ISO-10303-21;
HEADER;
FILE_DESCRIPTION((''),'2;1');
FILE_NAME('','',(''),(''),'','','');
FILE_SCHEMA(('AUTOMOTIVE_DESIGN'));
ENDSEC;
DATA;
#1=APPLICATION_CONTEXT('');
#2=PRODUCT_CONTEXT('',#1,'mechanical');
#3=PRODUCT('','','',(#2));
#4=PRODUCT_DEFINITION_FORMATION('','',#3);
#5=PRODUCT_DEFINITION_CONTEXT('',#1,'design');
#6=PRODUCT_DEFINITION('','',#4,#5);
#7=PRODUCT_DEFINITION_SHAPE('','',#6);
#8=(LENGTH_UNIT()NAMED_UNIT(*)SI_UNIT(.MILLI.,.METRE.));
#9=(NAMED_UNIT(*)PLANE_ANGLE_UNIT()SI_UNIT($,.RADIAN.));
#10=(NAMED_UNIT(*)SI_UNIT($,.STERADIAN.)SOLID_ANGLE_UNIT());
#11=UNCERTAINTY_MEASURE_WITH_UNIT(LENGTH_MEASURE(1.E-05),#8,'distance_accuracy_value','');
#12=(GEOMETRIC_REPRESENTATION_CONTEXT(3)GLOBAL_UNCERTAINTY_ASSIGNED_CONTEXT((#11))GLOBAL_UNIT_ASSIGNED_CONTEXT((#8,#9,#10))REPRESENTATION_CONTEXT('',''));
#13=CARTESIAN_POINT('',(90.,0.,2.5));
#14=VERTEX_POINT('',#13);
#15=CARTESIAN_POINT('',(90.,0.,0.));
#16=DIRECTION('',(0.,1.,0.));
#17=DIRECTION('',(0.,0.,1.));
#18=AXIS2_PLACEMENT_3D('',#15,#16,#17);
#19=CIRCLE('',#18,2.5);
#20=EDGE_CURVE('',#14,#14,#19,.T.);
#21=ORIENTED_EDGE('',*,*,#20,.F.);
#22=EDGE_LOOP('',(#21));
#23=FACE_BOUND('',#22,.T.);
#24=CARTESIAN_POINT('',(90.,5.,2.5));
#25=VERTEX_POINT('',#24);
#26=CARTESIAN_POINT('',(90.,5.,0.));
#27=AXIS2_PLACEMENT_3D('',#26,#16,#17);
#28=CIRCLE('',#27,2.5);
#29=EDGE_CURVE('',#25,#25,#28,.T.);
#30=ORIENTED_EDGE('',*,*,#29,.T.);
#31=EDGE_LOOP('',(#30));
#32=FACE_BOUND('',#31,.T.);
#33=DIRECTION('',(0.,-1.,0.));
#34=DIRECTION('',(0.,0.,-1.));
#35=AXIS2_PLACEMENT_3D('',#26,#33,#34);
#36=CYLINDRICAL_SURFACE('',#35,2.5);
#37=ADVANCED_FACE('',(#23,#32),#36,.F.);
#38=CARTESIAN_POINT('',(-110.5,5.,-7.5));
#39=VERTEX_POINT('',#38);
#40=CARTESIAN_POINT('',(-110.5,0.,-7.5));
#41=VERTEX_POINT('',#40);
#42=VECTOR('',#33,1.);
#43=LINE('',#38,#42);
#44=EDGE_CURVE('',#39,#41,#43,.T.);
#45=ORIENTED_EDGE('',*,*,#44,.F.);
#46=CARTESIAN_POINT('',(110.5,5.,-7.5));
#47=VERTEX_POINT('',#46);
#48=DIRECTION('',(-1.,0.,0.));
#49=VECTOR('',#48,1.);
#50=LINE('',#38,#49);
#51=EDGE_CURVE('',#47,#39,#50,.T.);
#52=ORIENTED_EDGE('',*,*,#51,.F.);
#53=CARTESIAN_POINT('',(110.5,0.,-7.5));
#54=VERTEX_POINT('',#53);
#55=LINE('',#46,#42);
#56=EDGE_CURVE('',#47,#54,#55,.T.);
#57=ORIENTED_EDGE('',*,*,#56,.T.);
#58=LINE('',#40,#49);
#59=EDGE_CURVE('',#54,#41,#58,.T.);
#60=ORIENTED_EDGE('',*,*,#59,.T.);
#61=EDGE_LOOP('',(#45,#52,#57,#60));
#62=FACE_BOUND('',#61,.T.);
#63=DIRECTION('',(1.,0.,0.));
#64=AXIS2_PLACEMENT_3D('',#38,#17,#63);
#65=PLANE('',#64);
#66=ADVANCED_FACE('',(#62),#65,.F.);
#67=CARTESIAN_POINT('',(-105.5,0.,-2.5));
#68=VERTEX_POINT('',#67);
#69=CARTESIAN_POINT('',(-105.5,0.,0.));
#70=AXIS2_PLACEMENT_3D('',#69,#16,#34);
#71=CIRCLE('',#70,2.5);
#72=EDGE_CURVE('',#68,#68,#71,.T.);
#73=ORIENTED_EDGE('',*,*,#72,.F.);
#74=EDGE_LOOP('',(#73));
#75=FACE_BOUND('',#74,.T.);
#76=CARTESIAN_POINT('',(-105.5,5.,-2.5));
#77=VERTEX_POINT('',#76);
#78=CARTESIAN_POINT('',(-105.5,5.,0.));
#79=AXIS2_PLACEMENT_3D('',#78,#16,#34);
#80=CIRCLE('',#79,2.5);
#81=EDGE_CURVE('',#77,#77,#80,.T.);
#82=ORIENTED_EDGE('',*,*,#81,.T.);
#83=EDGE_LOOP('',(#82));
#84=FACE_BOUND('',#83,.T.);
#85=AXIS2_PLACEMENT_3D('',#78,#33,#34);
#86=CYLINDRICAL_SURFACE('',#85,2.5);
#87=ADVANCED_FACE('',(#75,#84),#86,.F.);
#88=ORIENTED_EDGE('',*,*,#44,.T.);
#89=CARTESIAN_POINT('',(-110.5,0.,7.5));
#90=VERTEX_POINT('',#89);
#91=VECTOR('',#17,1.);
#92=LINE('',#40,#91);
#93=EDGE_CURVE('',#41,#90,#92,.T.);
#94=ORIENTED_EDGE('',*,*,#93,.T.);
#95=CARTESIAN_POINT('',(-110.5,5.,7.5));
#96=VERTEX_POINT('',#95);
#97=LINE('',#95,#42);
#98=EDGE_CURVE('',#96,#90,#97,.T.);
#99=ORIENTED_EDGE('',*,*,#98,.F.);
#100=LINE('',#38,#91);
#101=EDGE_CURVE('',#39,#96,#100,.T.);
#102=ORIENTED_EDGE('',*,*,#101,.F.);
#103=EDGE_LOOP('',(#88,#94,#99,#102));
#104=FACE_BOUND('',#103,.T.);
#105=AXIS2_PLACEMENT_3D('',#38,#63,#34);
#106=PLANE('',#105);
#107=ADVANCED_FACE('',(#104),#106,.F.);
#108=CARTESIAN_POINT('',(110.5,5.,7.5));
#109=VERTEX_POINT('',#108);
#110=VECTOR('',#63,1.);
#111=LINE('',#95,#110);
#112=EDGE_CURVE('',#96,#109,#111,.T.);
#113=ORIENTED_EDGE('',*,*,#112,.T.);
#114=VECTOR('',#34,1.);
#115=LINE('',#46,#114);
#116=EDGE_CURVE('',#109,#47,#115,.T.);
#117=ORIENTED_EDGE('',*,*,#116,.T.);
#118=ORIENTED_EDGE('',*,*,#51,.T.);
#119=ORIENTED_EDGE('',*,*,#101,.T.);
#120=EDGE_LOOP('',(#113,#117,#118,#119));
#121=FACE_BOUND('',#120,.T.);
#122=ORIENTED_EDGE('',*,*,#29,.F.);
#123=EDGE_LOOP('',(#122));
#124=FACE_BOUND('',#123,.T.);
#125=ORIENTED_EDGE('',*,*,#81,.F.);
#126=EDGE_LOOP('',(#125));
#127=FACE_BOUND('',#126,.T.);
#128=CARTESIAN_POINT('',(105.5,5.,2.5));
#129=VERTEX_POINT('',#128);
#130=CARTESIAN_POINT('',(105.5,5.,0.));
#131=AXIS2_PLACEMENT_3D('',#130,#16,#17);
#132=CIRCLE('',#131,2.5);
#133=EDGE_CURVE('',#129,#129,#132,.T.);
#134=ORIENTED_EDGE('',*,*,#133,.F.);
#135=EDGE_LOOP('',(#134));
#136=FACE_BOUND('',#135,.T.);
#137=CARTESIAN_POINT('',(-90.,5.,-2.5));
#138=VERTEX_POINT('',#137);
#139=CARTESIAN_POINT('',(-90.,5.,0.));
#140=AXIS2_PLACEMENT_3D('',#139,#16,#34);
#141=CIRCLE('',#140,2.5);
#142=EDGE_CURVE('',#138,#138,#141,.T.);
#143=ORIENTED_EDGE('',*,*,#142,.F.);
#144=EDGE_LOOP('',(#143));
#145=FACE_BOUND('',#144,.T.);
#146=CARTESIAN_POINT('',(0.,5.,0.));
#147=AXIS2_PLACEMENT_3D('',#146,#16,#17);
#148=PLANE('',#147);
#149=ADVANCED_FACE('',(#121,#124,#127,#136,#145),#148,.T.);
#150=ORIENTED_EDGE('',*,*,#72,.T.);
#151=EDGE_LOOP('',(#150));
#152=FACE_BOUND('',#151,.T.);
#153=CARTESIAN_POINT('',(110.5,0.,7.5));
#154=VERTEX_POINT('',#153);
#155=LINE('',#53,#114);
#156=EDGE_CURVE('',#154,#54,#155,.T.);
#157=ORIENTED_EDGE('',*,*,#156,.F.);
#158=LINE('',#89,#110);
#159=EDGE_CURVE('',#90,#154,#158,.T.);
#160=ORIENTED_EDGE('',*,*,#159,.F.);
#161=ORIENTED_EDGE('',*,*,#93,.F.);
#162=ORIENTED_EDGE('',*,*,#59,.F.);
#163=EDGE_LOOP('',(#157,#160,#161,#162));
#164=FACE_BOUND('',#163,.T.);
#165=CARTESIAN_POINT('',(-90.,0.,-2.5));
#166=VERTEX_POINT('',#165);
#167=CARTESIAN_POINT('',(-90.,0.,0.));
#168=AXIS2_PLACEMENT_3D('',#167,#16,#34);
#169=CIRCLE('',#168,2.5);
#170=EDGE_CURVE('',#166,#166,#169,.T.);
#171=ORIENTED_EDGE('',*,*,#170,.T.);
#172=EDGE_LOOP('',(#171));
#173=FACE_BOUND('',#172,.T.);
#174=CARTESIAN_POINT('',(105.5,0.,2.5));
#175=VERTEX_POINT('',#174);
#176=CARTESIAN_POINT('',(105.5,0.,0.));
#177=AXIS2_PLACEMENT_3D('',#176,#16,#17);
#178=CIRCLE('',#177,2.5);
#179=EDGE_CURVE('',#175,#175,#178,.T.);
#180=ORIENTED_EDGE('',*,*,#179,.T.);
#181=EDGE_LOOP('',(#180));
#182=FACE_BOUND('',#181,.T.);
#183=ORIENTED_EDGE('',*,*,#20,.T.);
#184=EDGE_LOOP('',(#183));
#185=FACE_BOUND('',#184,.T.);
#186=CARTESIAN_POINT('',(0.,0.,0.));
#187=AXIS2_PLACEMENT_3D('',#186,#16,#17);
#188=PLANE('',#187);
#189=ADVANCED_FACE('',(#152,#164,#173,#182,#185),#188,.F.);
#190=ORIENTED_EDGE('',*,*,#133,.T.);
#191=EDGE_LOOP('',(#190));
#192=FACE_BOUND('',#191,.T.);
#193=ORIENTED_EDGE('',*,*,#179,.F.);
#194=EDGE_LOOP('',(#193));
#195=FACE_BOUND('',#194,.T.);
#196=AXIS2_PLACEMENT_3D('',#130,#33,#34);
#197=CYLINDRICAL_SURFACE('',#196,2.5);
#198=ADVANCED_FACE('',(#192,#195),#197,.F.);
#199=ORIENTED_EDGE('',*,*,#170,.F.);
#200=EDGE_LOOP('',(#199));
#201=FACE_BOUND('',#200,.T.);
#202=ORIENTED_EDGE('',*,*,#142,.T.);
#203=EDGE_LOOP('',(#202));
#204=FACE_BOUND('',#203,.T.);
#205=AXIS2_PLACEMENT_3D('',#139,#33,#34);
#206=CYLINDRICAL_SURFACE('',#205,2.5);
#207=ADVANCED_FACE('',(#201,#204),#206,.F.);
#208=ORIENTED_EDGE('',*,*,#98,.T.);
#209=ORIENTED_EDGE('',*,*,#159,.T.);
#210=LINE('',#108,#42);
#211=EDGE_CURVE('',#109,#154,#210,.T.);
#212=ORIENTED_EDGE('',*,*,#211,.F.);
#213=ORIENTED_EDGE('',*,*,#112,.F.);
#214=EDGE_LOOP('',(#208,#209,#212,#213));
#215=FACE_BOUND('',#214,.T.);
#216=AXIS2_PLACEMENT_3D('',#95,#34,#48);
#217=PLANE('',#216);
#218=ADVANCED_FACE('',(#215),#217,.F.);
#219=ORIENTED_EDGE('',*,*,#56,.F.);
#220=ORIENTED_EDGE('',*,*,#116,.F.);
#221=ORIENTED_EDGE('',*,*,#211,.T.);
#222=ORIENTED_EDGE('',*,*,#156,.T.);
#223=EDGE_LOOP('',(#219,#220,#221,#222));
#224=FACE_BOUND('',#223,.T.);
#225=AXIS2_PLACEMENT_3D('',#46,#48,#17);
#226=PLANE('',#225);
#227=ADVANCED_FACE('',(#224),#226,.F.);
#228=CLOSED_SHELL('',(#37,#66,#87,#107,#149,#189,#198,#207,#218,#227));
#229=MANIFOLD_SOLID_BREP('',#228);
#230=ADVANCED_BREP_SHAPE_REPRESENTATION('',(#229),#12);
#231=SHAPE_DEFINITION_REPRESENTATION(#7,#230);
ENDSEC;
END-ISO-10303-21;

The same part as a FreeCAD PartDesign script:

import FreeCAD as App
import Part
import Sketcher
from FreeCAD import Vector


def add_polygon(sketch, points):
    """Adds a closed chain of lines whose ends are joined by coincident constraints."""
    first, n = sketch.GeometryCount, len(points)
    for a, b in zip(points, points[1:] + points[:1]):
        sketch.addGeometry(Part.LineSegment(App.Vector(*a, 0), App.Vector(*b, 0)), False)
    for i in range(n):
        sketch.addConstraint(Sketcher.Constraint("Coincident", first + i, 2, first + (i + 1) % n, 1))

doc = App.newDocument("Part")
body = doc.addObject("PartDesign::Body", "Body")

# Sketch on XZ plane
sketch1 = body.newObject("Sketcher::SketchObject", "Sketch")
sketch1.AttachmentSupport = (doc.getObject("XZ_Plane"), [""])
sketch1.MapMode = "FlatFace"
add_polygon(sketch1, [(-110.5, -7.5), (-110.5, 7.5), (110.5, 7.5), (110.5, -7.5)])  # lines 0-3
sketch1.addGeometry(Part.Circle(Vector(-105.5, 0, 0), Vector(0, 0, 1), 2.5), False)  # 4
sketch1.addGeometry(Part.Circle(Vector(-90, 0, 0), Vector(0, 0, 1), 2.5), False)  # 5
sketch1.addGeometry(Part.Circle(Vector(90, 0, 0), Vector(0, 0, 1), 2.5), False)  # 6
sketch1.addGeometry(Part.Circle(Vector(105.5, 0, 0), Vector(0, 0, 1), 2.5), False)  # 7
sketch1.addConstraint(Sketcher.Constraint("Vertical", 0))
sketch1.addConstraint(Sketcher.Constraint("Horizontal", 1))
sketch1.addConstraint(Sketcher.Constraint("Vertical", 2))
sketch1.addConstraint(Sketcher.Constraint("Horizontal", 3))
sketch1.addConstraint(Sketcher.Constraint("Equal", 4, 5))
sketch1.addConstraint(Sketcher.Constraint("Equal", 5, 6))
sketch1.addConstraint(Sketcher.Constraint("Equal", 6, 7))
sketch1.addConstraint(Sketcher.Constraint("Symmetric", 5, 3, 6, 3, -1, 1))
sketch1.addConstraint(Sketcher.Constraint("Symmetric", 4, 3, 7, 3, -1, 1))
sketch1.addConstraint(Sketcher.Constraint("Symmetric", 0, 2, 2, 2, -1, 1))
sketch1.addConstraint(Sketcher.Constraint("PointOnObject", 4, 3, -1))
sketch1.addConstraint(Sketcher.Constraint("PointOnObject", 5, 3, -1))
sketch1.addConstraint(Sketcher.Constraint("Diameter", 4, 5.0))
sketch1.addConstraint(Sketcher.Constraint("DistanceX", 1, 1, 1, 2, 221.0))
sketch1.addConstraint(Sketcher.Constraint("DistanceY", 0, 1, 0, 2, 15.0))
sketch1.addConstraint(Sketcher.Constraint("DistanceX", 5, 3, -1, 1, 90.0))
sketch1.addConstraint(Sketcher.Constraint("DistanceX", 4, 3, 7, 3, 211.0))
pad1 = body.newObject("PartDesign::Pad", "Pad")
pad1.Profile = sketch1
pad1.Length = 5
pad1.Reversed = True

doc.recompute()
